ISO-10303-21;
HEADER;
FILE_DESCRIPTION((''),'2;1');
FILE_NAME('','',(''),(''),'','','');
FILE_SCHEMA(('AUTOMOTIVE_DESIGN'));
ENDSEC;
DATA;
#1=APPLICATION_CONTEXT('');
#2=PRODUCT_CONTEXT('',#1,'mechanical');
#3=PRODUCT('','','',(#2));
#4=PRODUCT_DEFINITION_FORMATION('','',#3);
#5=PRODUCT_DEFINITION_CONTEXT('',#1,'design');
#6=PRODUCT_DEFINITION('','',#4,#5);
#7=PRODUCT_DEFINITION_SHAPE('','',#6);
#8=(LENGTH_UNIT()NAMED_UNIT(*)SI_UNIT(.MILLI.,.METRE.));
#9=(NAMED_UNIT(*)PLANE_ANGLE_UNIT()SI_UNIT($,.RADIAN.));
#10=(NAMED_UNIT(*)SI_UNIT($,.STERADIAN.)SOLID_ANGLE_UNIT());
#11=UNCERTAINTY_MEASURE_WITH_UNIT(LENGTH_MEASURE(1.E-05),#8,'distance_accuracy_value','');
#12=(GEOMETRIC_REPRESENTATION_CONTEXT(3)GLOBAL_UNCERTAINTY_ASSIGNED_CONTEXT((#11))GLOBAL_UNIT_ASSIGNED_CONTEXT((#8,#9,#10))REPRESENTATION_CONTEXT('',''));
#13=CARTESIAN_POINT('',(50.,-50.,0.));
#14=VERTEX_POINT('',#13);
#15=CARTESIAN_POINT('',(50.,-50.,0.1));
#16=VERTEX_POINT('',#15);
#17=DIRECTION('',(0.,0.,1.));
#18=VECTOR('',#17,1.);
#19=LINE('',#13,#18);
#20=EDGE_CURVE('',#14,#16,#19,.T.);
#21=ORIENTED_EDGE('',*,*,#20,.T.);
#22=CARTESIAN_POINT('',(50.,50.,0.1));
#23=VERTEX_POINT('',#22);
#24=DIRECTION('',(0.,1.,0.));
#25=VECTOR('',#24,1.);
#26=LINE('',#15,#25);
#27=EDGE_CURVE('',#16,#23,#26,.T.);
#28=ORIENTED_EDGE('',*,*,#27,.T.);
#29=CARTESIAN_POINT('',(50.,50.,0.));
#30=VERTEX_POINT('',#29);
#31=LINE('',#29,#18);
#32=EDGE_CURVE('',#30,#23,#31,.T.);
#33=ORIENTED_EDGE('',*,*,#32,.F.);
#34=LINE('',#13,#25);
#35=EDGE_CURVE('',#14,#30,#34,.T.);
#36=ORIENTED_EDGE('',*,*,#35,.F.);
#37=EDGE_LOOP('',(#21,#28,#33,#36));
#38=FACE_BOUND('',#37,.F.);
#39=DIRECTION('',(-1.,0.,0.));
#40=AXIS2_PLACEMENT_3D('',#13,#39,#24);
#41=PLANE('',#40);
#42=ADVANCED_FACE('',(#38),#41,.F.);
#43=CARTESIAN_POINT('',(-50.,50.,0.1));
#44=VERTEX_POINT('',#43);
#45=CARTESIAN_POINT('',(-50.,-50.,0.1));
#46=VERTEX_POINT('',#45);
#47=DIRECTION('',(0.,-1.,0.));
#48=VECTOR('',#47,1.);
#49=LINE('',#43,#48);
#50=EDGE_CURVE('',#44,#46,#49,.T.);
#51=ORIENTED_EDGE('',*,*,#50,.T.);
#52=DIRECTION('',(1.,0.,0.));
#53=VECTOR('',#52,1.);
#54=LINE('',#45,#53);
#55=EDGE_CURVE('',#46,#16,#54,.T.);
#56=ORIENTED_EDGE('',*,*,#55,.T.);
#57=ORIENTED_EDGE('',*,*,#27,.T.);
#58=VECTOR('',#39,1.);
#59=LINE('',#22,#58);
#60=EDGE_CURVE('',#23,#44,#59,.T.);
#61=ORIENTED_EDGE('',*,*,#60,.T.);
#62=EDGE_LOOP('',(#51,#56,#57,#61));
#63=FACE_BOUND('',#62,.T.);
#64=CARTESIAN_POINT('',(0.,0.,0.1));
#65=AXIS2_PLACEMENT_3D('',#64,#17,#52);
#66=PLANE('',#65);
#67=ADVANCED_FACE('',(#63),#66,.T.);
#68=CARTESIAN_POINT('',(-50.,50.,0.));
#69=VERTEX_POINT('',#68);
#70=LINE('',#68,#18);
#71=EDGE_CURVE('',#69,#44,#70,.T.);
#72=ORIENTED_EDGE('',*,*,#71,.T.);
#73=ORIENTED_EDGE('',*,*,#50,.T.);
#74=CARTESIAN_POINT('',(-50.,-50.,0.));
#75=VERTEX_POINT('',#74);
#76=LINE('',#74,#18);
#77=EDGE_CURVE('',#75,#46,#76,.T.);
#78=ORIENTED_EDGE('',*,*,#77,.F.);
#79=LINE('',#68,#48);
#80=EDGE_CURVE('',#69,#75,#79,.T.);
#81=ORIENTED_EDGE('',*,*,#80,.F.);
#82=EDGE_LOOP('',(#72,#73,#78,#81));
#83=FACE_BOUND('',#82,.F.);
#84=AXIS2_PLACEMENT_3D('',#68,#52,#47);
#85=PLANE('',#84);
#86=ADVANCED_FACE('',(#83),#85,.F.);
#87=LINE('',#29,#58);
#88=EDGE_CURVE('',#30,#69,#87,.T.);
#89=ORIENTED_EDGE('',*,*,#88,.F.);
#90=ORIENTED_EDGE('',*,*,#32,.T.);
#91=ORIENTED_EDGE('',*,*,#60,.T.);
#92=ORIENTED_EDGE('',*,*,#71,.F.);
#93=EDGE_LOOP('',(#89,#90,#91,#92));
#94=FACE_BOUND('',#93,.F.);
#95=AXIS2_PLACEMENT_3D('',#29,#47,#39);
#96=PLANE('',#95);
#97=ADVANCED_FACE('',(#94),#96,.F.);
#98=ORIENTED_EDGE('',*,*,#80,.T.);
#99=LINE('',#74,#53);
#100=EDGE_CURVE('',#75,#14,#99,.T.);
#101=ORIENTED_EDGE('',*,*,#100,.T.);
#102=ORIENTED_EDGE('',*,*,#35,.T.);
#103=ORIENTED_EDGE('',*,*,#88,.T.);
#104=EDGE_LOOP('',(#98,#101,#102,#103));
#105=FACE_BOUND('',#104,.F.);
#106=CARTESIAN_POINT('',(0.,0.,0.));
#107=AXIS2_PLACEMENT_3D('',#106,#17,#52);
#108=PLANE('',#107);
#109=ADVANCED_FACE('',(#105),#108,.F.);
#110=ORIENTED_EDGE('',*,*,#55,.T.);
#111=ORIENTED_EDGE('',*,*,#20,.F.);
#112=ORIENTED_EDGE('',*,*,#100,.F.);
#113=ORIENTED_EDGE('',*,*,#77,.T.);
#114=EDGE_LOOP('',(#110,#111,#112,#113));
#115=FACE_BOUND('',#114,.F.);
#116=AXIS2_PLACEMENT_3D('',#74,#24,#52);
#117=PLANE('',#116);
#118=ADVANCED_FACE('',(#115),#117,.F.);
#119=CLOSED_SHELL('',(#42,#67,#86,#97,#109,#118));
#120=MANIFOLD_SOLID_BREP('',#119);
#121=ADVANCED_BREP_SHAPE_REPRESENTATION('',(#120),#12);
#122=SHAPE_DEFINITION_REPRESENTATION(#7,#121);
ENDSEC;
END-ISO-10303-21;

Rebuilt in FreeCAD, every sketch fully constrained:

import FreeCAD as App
import Part
import Sketcher
from FreeCAD import Vector
Q = App.Units.Quantity

doc = App.newDocument("Part")
params = doc.addObject("Spreadsheet::Sheet", "Params")
for row, (alias, value) in enumerate([
    ("sketch1_width", "100 mm"),
    ("pad1_length", "0.1 mm"),
], start=1):
    params.set(f"A{row}", alias)
    params.set(f"B{row}", "=" + value)
    params.setAlias(f"B{row}", alias)

body = doc.addObject("PartDesign::Body", "Body")

# Sketch on XY plane
sketch1 = body.newObject("Sketcher::SketchObject", "Sketch")
sketch1.AttachmentSupport = (doc.getObject("XY_Plane"), [""])
sketch1.MapMode = "FlatFace"
sketch1.addGeometry(Part.LineSegment(Vector(-50, 50, 0), Vector(-50, -50, 0)), False)
sketch1.addGeometry(Part.LineSegment(Vector(-50, -50, 0), Vector(50, -50, 0)), False)
sketch1.addGeometry(Part.LineSegment(Vector(50, -50, 0), Vector(50, 50, 0)), False)
sketch1.addGeometry(Part.LineSegment(Vector(50, 50, 0), Vector(-50, 50, 0)), False)
sketch1.addConstraint(Sketcher.Constraint("Coincident", 0, 2, 1, 1))
sketch1.addConstraint(Sketcher.Constraint("Coincident", 1, 2, 2, 1))
sketch1.addConstraint(Sketcher.Constraint("Coincident", 2, 2, 3, 1))
sketch1.addConstraint(Sketcher.Constraint("Coincident", 3, 2, 0, 1))
sketch1.addConstraint(Sketcher.Constraint("Vertical", 0))
sketch1.addConstraint(Sketcher.Constraint("Horizontal", 1))
sketch1.addConstraint(Sketcher.Constraint("Vertical", 2))
sketch1.addConstraint(Sketcher.Constraint("Horizontal", 3))
sketch1.addConstraint(Sketcher.Constraint("Symmetric", 0, 2, 2, 2, -1, 1))
sketch1.addConstraint(Sketcher.Constraint("Equal", 3, 0))
sketch1.addConstraint(Sketcher.Constraint("DistanceX", 1, 1, 1, 2, Q("100 mm")))
sketch1.setExpression("Constraints[10]", "Params.sketch1_width")
pad1 = body.newObject("PartDesign::Pad", "Pad")
pad1.Profile = sketch1
pad1.setExpression("Length", "Params.pad1_length")

doc.recompute()
